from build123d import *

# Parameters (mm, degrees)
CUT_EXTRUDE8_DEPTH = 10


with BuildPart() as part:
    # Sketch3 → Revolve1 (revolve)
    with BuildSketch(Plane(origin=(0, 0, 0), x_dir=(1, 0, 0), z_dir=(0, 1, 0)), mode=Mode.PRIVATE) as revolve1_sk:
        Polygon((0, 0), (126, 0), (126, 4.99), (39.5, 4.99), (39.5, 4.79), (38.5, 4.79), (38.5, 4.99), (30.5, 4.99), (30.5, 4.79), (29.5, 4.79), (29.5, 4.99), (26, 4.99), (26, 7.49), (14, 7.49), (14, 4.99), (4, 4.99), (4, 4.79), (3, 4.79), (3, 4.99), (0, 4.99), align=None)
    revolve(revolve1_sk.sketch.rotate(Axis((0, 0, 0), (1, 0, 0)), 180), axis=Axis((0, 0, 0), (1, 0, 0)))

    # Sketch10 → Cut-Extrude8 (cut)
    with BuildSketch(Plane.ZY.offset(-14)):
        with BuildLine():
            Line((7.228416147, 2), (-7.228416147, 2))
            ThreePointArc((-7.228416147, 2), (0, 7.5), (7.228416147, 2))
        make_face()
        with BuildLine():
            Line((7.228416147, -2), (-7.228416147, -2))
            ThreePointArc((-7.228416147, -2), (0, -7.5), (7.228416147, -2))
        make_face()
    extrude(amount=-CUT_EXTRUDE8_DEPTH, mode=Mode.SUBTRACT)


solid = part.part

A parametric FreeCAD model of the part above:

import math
import FreeCAD as App
import Part
import Sketcher
Q = App.Units.Quantity

doc = App.newDocument("Part")
body = doc.addObject("PartDesign::Body", "Body")

# Sketch on XZ plane
sketch1 = body.newObject("Sketcher::SketchObject", "Sketch")
sketch1.AttachmentSupport = (doc.getObject("XZ_Plane"), [""])
sketch1.MapMode = "FlatFace"
sketch1.addGeometry([
    Part.LineSegment(App.Vector(0, 0, 0), App.Vector(126, 0, 0)),  # 0
    Part.LineSegment(App.Vector(126, 0, 0), App.Vector(126, -4.99, 0)),  # 1
    Part.LineSegment(App.Vector(126, -4.99, 0), App.Vector(39.5, -4.99, 0)),  # 2
    Part.LineSegment(App.Vector(39.5, -4.99, 0), App.Vector(39.5, -4.79, 0)),  # 3
    Part.LineSegment(App.Vector(39.5, -4.79, 0), App.Vector(38.5, -4.79, 0)),  # 4
    Part.LineSegment(App.Vector(38.5, -4.79, 0), App.Vector(38.5, -4.99, 0)),  # 5
    Part.LineSegment(App.Vector(38.5, -4.99, 0), App.Vector(30.5, -4.99, 0)),  # 6
    Part.LineSegment(App.Vector(30.5, -4.99, 0), App.Vector(30.5, -4.79, 0)),  # 7
    Part.LineSegment(App.Vector(30.5, -4.79, 0), App.Vector(29.5, -4.79, 0)),  # 8
    Part.LineSegment(App.Vector(29.5, -4.79, 0), App.Vector(29.5, -4.99, 0)),  # 9
    Part.LineSegment(App.Vector(29.5, -4.99, 0), App.Vector(26, -4.99, 0)),  # 10
    Part.LineSegment(App.Vector(26, -4.99, 0), App.Vector(26, -7.49, 0)),  # 11
    Part.LineSegment(App.Vector(26, -7.49, 0), App.Vector(14, -7.49, 0)),  # 12
    Part.LineSegment(App.Vector(14, -7.49, 0), App.Vector(14, -4.99, 0)),  # 13
    Part.LineSegment(App.Vector(14, -4.99, 0), App.Vector(4, -4.99, 0)),  # 14
    Part.LineSegment(App.Vector(4, -4.99, 0), App.Vector(4, -4.79, 0)),  # 15
    Part.LineSegment(App.Vector(4, -4.79, 0), App.Vector(3, -4.79, 0)),  # 16
    Part.LineSegment(App.Vector(3, -4.79, 0), App.Vector(3, -4.99, 0)),  # 17
    Part.LineSegment(App.Vector(3, -4.99, 0), App.Vector(0, -4.99, 0)),  # 18
    Part.LineSegment(App.Vector(0, -4.99, 0), App.Vector(0, 0, 0)),  # 19
], False)
sketch1.addConstraint([
    Sketcher.Constraint("Coincident", 0, 2, 1, 1),
    Sketcher.Constraint("Coincident", 1, 2, 2, 1),
    Sketcher.Constraint("Coincident", 2, 2, 3, 1),
    Sketcher.Constraint("Coincident", 3, 2, 4, 1),
    Sketcher.Constraint("Coincident", 4, 2, 5, 1),
    Sketcher.Constraint("Coincident", 5, 2, 6, 1),
    Sketcher.Constraint("Coincident", 6, 2, 7, 1),
    Sketcher.Constraint("Coincident", 7, 2, 8, 1),
    Sketcher.Constraint("Coincident", 8, 2, 9, 1),
    Sketcher.Constraint("Coincident", 9, 2, 10, 1),
    Sketcher.Constraint("Coincident", 10, 2, 11, 1),
    Sketcher.Constraint("Coincident", 11, 2, 12, 1),
    Sketcher.Constraint("Coincident", 12, 2, 13, 1),
    Sketcher.Constraint("Coincident", 13, 2, 14, 1),
    Sketcher.Constraint("Coincident", 14, 2, 15, 1),
    Sketcher.Constraint("Coincident", 15, 2, 16, 1),
    Sketcher.Constraint("Coincident", 16, 2, 17, 1),
    Sketcher.Constraint("Coincident", 17, 2, 18, 1),
    Sketcher.Constraint("Coincident", 18, 2, 19, 1),
    Sketcher.Constraint("Coincident", 19, 2, 0, 1),
    Sketcher.Constraint("Horizontal", 0),
    Sketcher.Constraint("Vertical", 1),
    Sketcher.Constraint("Horizontal", 2),
    Sketcher.Constraint("Vertical", 3),
    Sketcher.Constraint("Horizontal", 4),
    Sketcher.Constraint("Vertical", 5),
    Sketcher.Constraint("Horizontal", 6),
    Sketcher.Constraint("Vertical", 7),
    Sketcher.Constraint("Horizontal", 8),
    Sketcher.Constraint("Vertical", 9),
    Sketcher.Constraint("Horizontal", 10),
    Sketcher.Constraint("Vertical", 11),
    Sketcher.Constraint("Horizontal", 12),
    Sketcher.Constraint("Vertical", 13),
    Sketcher.Constraint("Horizontal", 14),
    Sketcher.Constraint("Vertical", 15),
    Sketcher.Constraint("Horizontal", 16),
    Sketcher.Constraint("Vertical", 17),
    Sketcher.Constraint("Horizontal", 18),
    Sketcher.Constraint("Vertical", 19),
    Sketcher.Constraint("Coincident", 19, 2, -1, 1),
    Sketcher.Constraint("Horizontal", 2, 2, 5, 2),
    Sketcher.Constraint("Horizontal", 4, 2, 7, 2),
    Sketcher.Constraint("Horizontal", 6, 2, 9, 2),
    Sketcher.Constraint("Horizontal", 10, 2, 13, 2),
    Sketcher.Constraint("Horizontal", 8, 2, 15, 2),
    Sketcher.Constraint("Horizontal", 14, 2, 17, 2),
    Sketcher.Constraint("Equal", 4, 8),
    Sketcher.Constraint("Equal", 8, 16),
    Sketcher.Constraint("DistanceX", 0, 1, 0, 2, Q("126 mm")),
    Sketcher.Constraint("DistanceX", 4, 2, 4, 1, Q("1 mm")),
    Sketcher.Constraint("DistanceX", 6, 2, 6, 1, Q("8 mm")),
    Sketcher.Constraint("DistanceX", 12, 2, 12, 1, Q("12 mm")),
    Sketcher.Constraint("DistanceX", 14, 2, 14, 1, Q("10 mm")),
    Sketcher.Constraint("DistanceX", 18, 2, 18, 1, Q("3 mm")),
    Sketcher.Constraint("DistanceX", 2, 2, 2, 1, Q("86.5 mm")),
    Sketcher.Constraint("DistanceY", 3, 1, 3, 2, Q("0.2 mm")),
    Sketcher.Constraint("DistanceY", 11, 2, 11, 1, Q("2.5 mm")),
    Sketcher.Constraint("DistanceY", 1, 2, 1, 1, Q("4.99 mm")),
])
revolution = body.newObject("PartDesign::Revolution", "Revolution")
revolution.Profile = sketch1
revolution.ReferenceAxis = (sketch1, ["H_Axis"])
revolution.Angle = 360

# Sketch on YZ plane
sketch2 = body.newObject("Sketcher::SketchObject", "Sketch001")
sketch2.AttachmentSupport = (doc.getObject("YZ_Plane"), [""])
sketch2.MapMode = "FlatFace"
sketch2.AttachmentOffset = App.Placement(App.Vector(0, 0, 14), App.Rotation())
sketch2.addGeometry([
    Part.LineSegment(App.Vector(2, -7.228416, 0), App.Vector(2, 7.228416, 0)),
    Part.ArcOfCircle(Part.Circle(App.Vector(0, 0, 0), App.Vector(0, 0, 1), 7.5), math.radians(-74.53399), math.radians(74.53399)),
    Part.LineSegment(App.Vector(-2, 7.228416, 0), App.Vector(-2, -7.228416, 0)),
    Part.ArcOfCircle(Part.Circle(App.Vector(0, 0, 0), App.Vector(0, 0, 1), 7.5), math.radians(105.46601), math.radians(254.53399)),
], False)
sketch2.addConstraint([
    Sketcher.Constraint("Coincident", 0, 1, 1, 1),
    Sketcher.Constraint("Coincident", 1, 2, 0, 2),
    Sketcher.Constraint("Coincident", 2, 1, 3, 1),
    Sketcher.Constraint("Coincident", 3, 2, 2, 2),
    Sketcher.Constraint("Vertical", 0),
    Sketcher.Constraint("Vertical", 2),
    Sketcher.Constraint("Coincident", 1, 3, -1, 1),
    Sketcher.Constraint("Coincident", 3, 3, -1, 1),
    Sketcher.Constraint("Equal", 1, 3),
    Sketcher.Constraint("Horizontal", 1, 2, 2, 1),
    Sketcher.Constraint("Radius", 1, Q("7.5 mm")),
    Sketcher.Constraint("DistanceX", -1, 1, 0, 1, Q("2 mm")),
])
pocket1 = body.newObject("PartDesign::Pocket", "Pocket")
pocket1.Profile = sketch2
pocket1.Length = 10
pocket1.Reversed = True

doc.recompute()
